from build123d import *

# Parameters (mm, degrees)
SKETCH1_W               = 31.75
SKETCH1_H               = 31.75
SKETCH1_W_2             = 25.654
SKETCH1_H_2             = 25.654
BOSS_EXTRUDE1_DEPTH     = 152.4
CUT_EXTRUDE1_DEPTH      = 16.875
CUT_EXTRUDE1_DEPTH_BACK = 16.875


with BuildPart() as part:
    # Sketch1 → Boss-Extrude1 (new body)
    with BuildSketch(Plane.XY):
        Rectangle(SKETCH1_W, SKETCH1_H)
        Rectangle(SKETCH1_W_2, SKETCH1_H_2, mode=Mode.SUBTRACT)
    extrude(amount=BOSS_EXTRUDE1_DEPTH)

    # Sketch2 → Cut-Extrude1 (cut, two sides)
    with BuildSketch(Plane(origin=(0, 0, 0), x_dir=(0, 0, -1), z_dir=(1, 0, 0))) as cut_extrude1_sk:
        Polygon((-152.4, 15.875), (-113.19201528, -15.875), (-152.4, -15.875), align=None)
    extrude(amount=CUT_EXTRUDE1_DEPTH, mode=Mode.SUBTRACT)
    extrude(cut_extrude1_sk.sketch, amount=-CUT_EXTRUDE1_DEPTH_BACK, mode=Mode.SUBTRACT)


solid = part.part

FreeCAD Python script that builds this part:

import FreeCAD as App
import Part
import Sketcher
Q = App.Units.Quantity


def add_polygon(sketch, points):
    """Adds a closed chain of lines whose ends are joined by coincident constraints."""
    first, n = sketch.GeometryCount, len(points)
    for a, b in zip(points, points[1:] + points[:1]):
        sketch.addGeometry(Part.LineSegment(App.Vector(*a, 0), App.Vector(*b, 0)), False)
    for i in range(n):
        sketch.addConstraint(Sketcher.Constraint("Coincident", first + i, 2, first + (i + 1) % n, 1))

doc = App.newDocument("Part")
body = doc.addObject("PartDesign::Body", "Body")

# Sketch on XY plane
sketch1 = body.newObject("Sketcher::SketchObject", "Sketch")
sketch1.AttachmentSupport = (doc.getObject("XY_Plane"), [""])
sketch1.MapMode = "FlatFace"
add_polygon(sketch1, [(-16, 16), (-16, -16), (16, -16), (16, 16)])  # lines 0-3
add_polygon(sketch1, [(13, -13), (-13, -13), (-13, 13), (13, 13)])  # lines 4-7
sketch1.addConstraint([
    Sketcher.Constraint("Vertical", 0),
    Sketcher.Constraint("Horizontal", 1),
    Sketcher.Constraint("Vertical", 2),
    Sketcher.Constraint("Horizontal", 3),
    Sketcher.Constraint("Horizontal", 4),
    Sketcher.Constraint("Vertical", 5),
    Sketcher.Constraint("Horizontal", 6),
    Sketcher.Constraint("Vertical", 7),
    Sketcher.Constraint("Symmetric", 0, 2, 2, 2, -1, 1),
    Sketcher.Constraint("Symmetric", 4, 2, 6, 2, -1, 1),
    Sketcher.Constraint("Equal", 3, 0),
    Sketcher.Constraint("Equal", 6, 5),
    Sketcher.Constraint("DistanceX", 1, 1, 1, 2, Q("1.25 in")),
    Sketcher.Constraint("DistanceX", 4, 2, 4, 1, Q("1.01 in")),
])
pad1 = body.newObject("PartDesign::Pad", "Pad")
pad1.Profile = sketch1
pad1.Length = Q("6 in")

# Sketch on YZ plane
sketch2 = body.newObject("Sketcher::SketchObject", "Sketch001")
sketch2.AttachmentSupport = (doc.getObject("YZ_Plane"), [""])
sketch2.MapMode = "FlatFace"
add_polygon(sketch2, [(-16, 113), (16, 152), (-16, 152)])  # lines 0-2
sketch2.addConstraint([
    Sketcher.Constraint("Horizontal", 1),
    Sketcher.Constraint("Vertical", 2),
    Sketcher.Constraint("DistanceY", -1, 1, 0, 2, Q("6 in")),
    Sketcher.Constraint("Angle", 0, Q("51 deg")),
    Sketcher.Constraint("DistanceX", 1, 2, 1, 1, Q("1.25 in")),
    Sketcher.Constraint("DistanceX", -1, 1, 0, 2, Q("0.625 in")),
])
pocket1 = body.newObject("PartDesign::Pocket", "Pocket")
pocket1.Profile = sketch2
pocket1.Type = "ThroughAll"
pocket1.Midplane = True

doc.recompute()
